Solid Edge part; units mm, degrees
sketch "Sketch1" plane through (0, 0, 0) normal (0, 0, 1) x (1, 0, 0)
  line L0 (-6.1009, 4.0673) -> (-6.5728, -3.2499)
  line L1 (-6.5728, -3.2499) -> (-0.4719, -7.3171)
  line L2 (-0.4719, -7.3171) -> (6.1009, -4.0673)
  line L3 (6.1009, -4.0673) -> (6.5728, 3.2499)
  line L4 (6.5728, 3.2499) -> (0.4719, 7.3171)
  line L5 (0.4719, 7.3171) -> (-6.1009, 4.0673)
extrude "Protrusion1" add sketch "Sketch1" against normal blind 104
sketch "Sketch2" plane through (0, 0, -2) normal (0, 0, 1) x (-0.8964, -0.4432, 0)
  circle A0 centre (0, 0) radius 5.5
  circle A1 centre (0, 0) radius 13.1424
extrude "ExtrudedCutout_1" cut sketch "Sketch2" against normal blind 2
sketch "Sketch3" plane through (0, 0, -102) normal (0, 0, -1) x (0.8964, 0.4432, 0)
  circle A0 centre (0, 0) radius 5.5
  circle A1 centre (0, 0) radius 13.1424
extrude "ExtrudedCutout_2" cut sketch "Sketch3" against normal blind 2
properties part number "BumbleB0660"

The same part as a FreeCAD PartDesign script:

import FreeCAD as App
import Part
import Sketcher
Q = App.Units.Quantity


def add_polygon(sketch, points):
    """Adds a closed chain of lines whose ends are joined by coincident constraints."""
    first, n = sketch.GeometryCount, len(points)
    for a, b in zip(points, points[1:] + points[:1]):
        sketch.addGeometry(Part.LineSegment(App.Vector(*a, 0), App.Vector(*b, 0)), False)
    for i in range(n):
        sketch.addConstraint(Sketcher.Constraint("Coincident", first + i, 2, first + (i + 1) % n, 1))

doc = App.newDocument("Part")
body = doc.addObject("PartDesign::Body", "Body")

# Sketch on XY plane
sketch1 = body.newObject("Sketcher::SketchObject", "Sketch")
sketch1.AttachmentSupport = (doc.getObject("XY_Plane"), [""])
sketch1.MapMode = "FlatFace"
add_polygon(sketch1, [(0.4719, 7.3171), (-6.1009, 4.0673), (-6.5728, -3.2499), (-0.4719, -7.3171), (6.1009, -4.0673), (6.5728, 3.2499)])  # lines 0-5
sketch1.addConstraint(Sketcher.Constraint("Symmetric", 0, 2, 3, 2, -1, 1))
sketch1.addConstraint(Sketcher.Constraint("Symmetric", 1, 2, 4, 2, -1, 1))
sketch1.addConstraint(Sketcher.Constraint("Symmetric", 2, 2, 5, 2, -1, 1))
sketch1.addConstraint(Sketcher.Constraint("Equal", 0, 1))
sketch1.addConstraint(Sketcher.Constraint("Equal", 1, 2))
sketch1.addConstraint(Sketcher.Constraint("Angle", 0, Q("-153.6908 deg")))
sketch1.addConstraint(Sketcher.Constraint("Angle", 1, Q("-93.69 deg")))
sketch1.addConstraint(Sketcher.Constraint("Angle", 2, Q("-33.6896 deg")))
sketch1.addConstraint(Sketcher.Constraint("DistanceY", 1, 2, -1, 1, Q("3.25 mm")))
pad1 = body.newObject("PartDesign::Pad", "Pad")
pad1.Profile = sketch1
pad1.Length = 104
pad1.Reversed = True

# Sketch on XY plane
sketch2 = body.newObject("Sketcher::SketchObject", "Sketch001")
sketch2.AttachmentSupport = (doc.getObject("XY_Plane"), [""])
sketch2.MapMode = "FlatFace"
sketch2.AttachmentOffset = App.Placement(App.Vector(0, 0, -2), App.Rotation())
sketch2.addGeometry(Part.Circle(App.Vector(0, 0, 0), App.Vector(0, 0, 1), 13.1424), False)
sketch2.addGeometry(Part.Circle(App.Vector(0, 0, 0), App.Vector(0, 0, 1), 5.5), False)
sketch2.addConstraint(Sketcher.Constraint("Coincident", 0, 3, -1, 1))
sketch2.addConstraint(Sketcher.Constraint("Coincident", 1, 3, -1, 1))
sketch2.addConstraint(Sketcher.Constraint("Diameter", 1, Q("11 mm")))
sketch2.addConstraint(Sketcher.Constraint("Diameter", 0, Q("26.2848 mm")))
pocket1 = body.newObject("PartDesign::Pocket", "Pocket")
pocket1.Profile = sketch2
pocket1.Length = 2

# Sketch on XY plane
sketch3 = body.newObject("Sketcher::SketchObject", "Sketch002")
sketch3.AttachmentSupport = (doc.getObject("XY_Plane"), [""])
sketch3.MapMode = "FlatFace"
sketch3.AttachmentOffset = App.Placement(App.Vector(0, 0, -102), App.Rotation())
sketch3.addGeometry(Part.Circle(App.Vector(0, 0, 0), App.Vector(0, 0, 1), 13.1424), False)
sketch3.addGeometry(Part.Circle(App.Vector(0, 0, 0), App.Vector(0, 0, 1), 5.5), False)
sketch3.addConstraint(Sketcher.Constraint("Coincident", 0, 3, -1, 1))
sketch3.addConstraint(Sketcher.Constraint("Coincident", 1, 3, -1, 1))
sketch3.addConstraint(Sketcher.Constraint("Diameter", 1, Q("11 mm")))
sketch3.addConstraint(Sketcher.Constraint("Diameter", 0, Q("26.2848 mm")))
pocket2 = body.newObject("PartDesign::Pocket", "Pocket001")
pocket2.Profile = sketch3
pocket2.Length = 2
pocket2.Reversed = True

doc.recompute()
